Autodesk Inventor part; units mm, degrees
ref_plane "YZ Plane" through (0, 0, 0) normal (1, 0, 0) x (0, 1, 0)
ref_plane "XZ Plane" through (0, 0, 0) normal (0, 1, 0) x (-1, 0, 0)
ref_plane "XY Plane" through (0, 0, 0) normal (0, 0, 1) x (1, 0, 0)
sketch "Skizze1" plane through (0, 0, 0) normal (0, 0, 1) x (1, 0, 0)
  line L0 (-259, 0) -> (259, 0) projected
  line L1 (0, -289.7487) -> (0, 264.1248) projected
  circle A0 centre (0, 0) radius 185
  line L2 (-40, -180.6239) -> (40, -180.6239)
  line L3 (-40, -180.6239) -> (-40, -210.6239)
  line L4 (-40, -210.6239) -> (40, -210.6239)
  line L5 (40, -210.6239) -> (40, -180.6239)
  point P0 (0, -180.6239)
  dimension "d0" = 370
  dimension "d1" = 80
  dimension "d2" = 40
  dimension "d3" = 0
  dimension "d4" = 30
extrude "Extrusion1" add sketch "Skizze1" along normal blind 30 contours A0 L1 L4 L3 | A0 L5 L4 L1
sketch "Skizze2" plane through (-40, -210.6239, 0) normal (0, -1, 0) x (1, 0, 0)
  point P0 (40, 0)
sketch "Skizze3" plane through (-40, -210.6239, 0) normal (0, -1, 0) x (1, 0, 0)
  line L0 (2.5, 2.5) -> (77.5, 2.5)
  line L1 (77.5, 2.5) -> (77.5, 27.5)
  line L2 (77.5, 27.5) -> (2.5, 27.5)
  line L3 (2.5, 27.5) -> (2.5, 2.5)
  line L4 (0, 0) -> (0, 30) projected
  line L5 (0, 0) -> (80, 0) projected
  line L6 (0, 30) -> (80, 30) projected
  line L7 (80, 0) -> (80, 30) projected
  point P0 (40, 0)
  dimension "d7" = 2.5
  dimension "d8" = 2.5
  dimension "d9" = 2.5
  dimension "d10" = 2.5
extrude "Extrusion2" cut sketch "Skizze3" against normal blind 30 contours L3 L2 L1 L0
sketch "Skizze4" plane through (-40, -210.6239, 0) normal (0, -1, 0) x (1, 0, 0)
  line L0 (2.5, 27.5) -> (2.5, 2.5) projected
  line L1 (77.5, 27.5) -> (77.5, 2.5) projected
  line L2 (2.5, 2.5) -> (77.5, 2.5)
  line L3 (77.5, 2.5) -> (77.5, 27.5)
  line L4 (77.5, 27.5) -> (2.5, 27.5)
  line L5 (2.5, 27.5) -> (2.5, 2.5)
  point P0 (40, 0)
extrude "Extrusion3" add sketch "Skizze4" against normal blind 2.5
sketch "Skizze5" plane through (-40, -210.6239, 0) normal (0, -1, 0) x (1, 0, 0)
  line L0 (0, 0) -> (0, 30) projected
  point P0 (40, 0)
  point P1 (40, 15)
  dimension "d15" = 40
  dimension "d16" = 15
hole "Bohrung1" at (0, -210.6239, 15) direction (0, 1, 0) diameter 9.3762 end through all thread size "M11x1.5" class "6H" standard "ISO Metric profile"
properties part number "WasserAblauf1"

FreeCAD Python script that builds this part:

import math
import FreeCAD as App
import Part
import Sketcher
from FreeCAD import Vector
Q = App.Units.Quantity

doc = App.newDocument("Part")
params = doc.addObject("Spreadsheet::Sheet", "Params")
for row, (alias, value) in enumerate([
    ("sketch1_radius", "185 mm"),
    ("sketch1_width", "80 mm"),
    ("sketch1_height", "30 mm"),
    ("pad1_length", "30 mm"),
    ("sketch2_width", "75 mm"),
    ("sketch2_height", "25 mm"),
    ("pocket1_length", "30 mm"),
    ("sketch3_width", "75 mm"),
    ("sketch3_height", "25 mm"),
    ("pad2_length", "2.5 mm"),
    ("hole_diameter", "9.3762 mm"),
], start=1):
    params.set(f"A{row}", alias)
    params.set(f"B{row}", "=" + value)
    params.setAlias(f"B{row}", alias)

body = doc.addObject("PartDesign::Body", "Body")

sketch1 = body.newObject("Sketcher::SketchObject", "Sketch")
sketch1.AttachmentSupport = (doc.getObject("XY_Plane"), [""])
sketch1.MapMode = "FlatFace"
sketch1.addGeometry([
    Part.LineSegment(Vector(-40, -180.6239, 0), Vector(-40, -210.6239, 0)),
    Part.LineSegment(Vector(-40, -210.6239, 0), Vector(40, -210.6239, 0)),
    Part.LineSegment(Vector(40, -210.6239, 0), Vector(40, -180.6239, 0)),
    Part.ArcOfCircle(Part.Circle(Vector(0, 0, 0), Vector(0, 0, 1), 185), math.radians(-102.486891), math.radians(-77.513109)),
], False)
sketch1.addConstraint([
    Sketcher.Constraint("Coincident", 0, 2, 1, 1),
    Sketcher.Constraint("Coincident", 1, 2, 2, 1),
    Sketcher.Constraint("Coincident", 2, 2, 3, 2),
    Sketcher.Constraint("Coincident", 3, 1, 0, 1),
    Sketcher.Constraint("Vertical", 0),
    Sketcher.Constraint("Horizontal", 1),
    Sketcher.Constraint("Vertical", 2),
    Sketcher.Constraint("Coincident", 3, 3, -1, 1),
    Sketcher.Constraint("Horizontal", 2, 2, 3, 1),
    Sketcher.Constraint("Radius", 3, Q("185 mm")),
    Sketcher.Constraint("DistanceX", 1, 1, 1, 2, Q("80 mm")),
    Sketcher.Constraint("DistanceY", 0, 2, 0, 1, Q("30 mm")),
])
sketch1.setExpression("Constraints[9]", "Params.sketch1_radius")
sketch1.setExpression("Constraints[10]", "Params.sketch1_width")
sketch1.setExpression("Constraints[11]", "Params.sketch1_height")
pad1 = body.newObject("PartDesign::Pad", "Pad")
pad1.Profile = sketch1
pad1.setExpression("Length", "Params.pad1_length")

sketch2 = body.newObject("Sketcher::SketchObject", "Sketch001")
sketch2.AttachmentSupport = (doc.getObject("XZ_Plane"), [""])
sketch2.MapMode = "FlatFace"
sketch2.AttachmentOffset = App.Placement(Vector(0, 0, 210.6239), App.Rotation())
sketch2.addGeometry([
    Part.LineSegment(Vector(-37.5, 27.5, 0), Vector(-37.5, 2.5, 0)),
    Part.LineSegment(Vector(-37.5, 2.5, 0), Vector(37.5, 2.5, 0)),
    Part.LineSegment(Vector(37.5, 2.5, 0), Vector(37.5, 27.5, 0)),
    Part.LineSegment(Vector(37.5, 27.5, 0), Vector(-37.5, 27.5, 0)),
], False)
sketch2.addConstraint([
    Sketcher.Constraint("Coincident", 0, 2, 1, 1),
    Sketcher.Constraint("Coincident", 1, 2, 2, 1),
    Sketcher.Constraint("Coincident", 2, 2, 3, 1),
    Sketcher.Constraint("Coincident", 3, 2, 0, 1),
    Sketcher.Constraint("Vertical", 0),
    Sketcher.Constraint("Horizontal", 1),
    Sketcher.Constraint("Vertical", 2),
    Sketcher.Constraint("Horizontal", 3),
    Sketcher.Constraint("DistanceY", -1, 1, 0, 2, Q("2.5 mm")),
    Sketcher.Constraint("DistanceX", 1, 1, 1, 2, Q("75 mm")),
    Sketcher.Constraint("DistanceY", 0, 2, 0, 1, Q("25 mm")),
    Sketcher.Constraint("DistanceX", 0, 2, -1, 1, Q("37.5 mm")),
])
sketch2.setExpression("Constraints[9]", "Params.sketch2_width")
sketch2.setExpression("Constraints[10]", "Params.sketch2_height")
pocket1 = body.newObject("PartDesign::Pocket", "Pocket")
pocket1.Profile = sketch2
pocket1.setExpression("Length", "Params.pocket1_length")

sketch3 = body.newObject("Sketcher::SketchObject", "Sketch002")
sketch3.AttachmentSupport = (doc.getObject("XZ_Plane"), [""])
sketch3.MapMode = "FlatFace"
sketch3.AttachmentOffset = App.Placement(Vector(0, 0, 210.6239), App.Rotation())
sketch3.addGeometry([
    Part.LineSegment(Vector(37.5, 27.5, 0), Vector(-37.5, 27.5, 0)),
    Part.LineSegment(Vector(-37.5, 27.5, 0), Vector(-37.5, 2.5, 0)),
    Part.LineSegment(Vector(-37.5, 2.5, 0), Vector(37.5, 2.5, 0)),
    Part.LineSegment(Vector(37.5, 2.5, 0), Vector(37.5, 27.5, 0)),
], False)
sketch3.addConstraint([
    Sketcher.Constraint("Coincident", 0, 2, 1, 1),
    Sketcher.Constraint("Coincident", 1, 2, 2, 1),
    Sketcher.Constraint("Coincident", 2, 2, 3, 1),
    Sketcher.Constraint("Coincident", 3, 2, 0, 1),
    Sketcher.Constraint("Horizontal", 0),
    Sketcher.Constraint("Vertical", 1),
    Sketcher.Constraint("Horizontal", 2),
    Sketcher.Constraint("Vertical", 3),
    Sketcher.Constraint("DistanceX", 0, 2, 0, 1, Q("75 mm")),
    Sketcher.Constraint("DistanceY", 1, 2, 1, 1, Q("25 mm")),
    Sketcher.Constraint("DistanceX", 0, 2, -1, 1, Q("37.5 mm")),
    Sketcher.Constraint("DistanceY", -1, 1, 0, 2, Q("27.5 mm")),
])
sketch3.setExpression("Constraints[8]", "Params.sketch3_width")
sketch3.setExpression("Constraints[9]", "Params.sketch3_height")
pad2 = body.newObject("PartDesign::Pad", "Pad001")
pad2.Profile = sketch3
pad2.setExpression("Length", "Params.pad2_length")
pad2.Reversed = True

sketch4 = body.newObject("Sketcher::SketchObject", "Sketch003")
sketch4.AttachmentSupport = (doc.getObject("XZ_Plane"), [""])
sketch4.MapMode = "FlatFace"
sketch4.AttachmentOffset = App.Placement(Vector(0, 0, 210.6239), App.Rotation())
sketch4.addGeometry(Part.Circle(Vector(0, 15, 0), Vector(0, 0, 1), 4.6881), False)
sketch4.addConstraint([
    Sketcher.Constraint("PointOnObject", 0, 3, -2),
    Sketcher.Constraint("DistanceY", -1, 1, 0, 3, Q("15 mm")),
    Sketcher.Constraint("Diameter", 0, Q("9.3762 mm")),
])
doc.recompute()
hole = body.newObject("PartDesign::Hole", "Hole")
hole.Profile = sketch4
hole.ThreadType = "None"
hole.setExpression("Diameter", "Params.hole_diameter")
hole.DepthType = "ThroughAll"

doc.recompute()
